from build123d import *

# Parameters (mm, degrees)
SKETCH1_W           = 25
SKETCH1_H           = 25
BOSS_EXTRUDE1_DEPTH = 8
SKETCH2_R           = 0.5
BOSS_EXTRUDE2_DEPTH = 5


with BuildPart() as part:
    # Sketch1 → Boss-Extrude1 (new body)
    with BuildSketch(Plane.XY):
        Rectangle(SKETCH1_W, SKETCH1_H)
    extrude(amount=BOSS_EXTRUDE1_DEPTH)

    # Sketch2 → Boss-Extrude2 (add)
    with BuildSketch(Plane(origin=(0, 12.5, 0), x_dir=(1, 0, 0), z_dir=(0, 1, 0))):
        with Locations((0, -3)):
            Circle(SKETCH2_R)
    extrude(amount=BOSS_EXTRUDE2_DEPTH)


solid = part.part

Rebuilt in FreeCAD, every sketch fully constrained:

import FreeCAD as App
import Part
import Sketcher

V = App.Vector

doc = App.newDocument("Part")
params = doc.addObject("Spreadsheet::Sheet", "Params")
for row, (alias, value) in enumerate([
    ("sketch1_width", "25 mm"),
    ("pad1_length", "8 mm"),
    ("sketch2_diameter", "1 mm"),
    ("pad2_length", "5 mm"),
], start=1):
    params.set(f"A{row}", alias)
    params.set(f"B{row}", "=" + value)
    params.setAlias(f"B{row}", alias)

body = doc.addObject("PartDesign::Body", "Body")

sketch1 = body.newObject("Sketcher::SketchObject", "Sketch")
sketch1.AttachmentSupport = (doc.getObject("XY_Plane"), [""])
sketch1.MapMode = "FlatFace"
sketch1.addGeometry(Part.LineSegment(V(-12, 12, 0), V(-12, -12, 0)), False)
sketch1.addGeometry(Part.LineSegment(V(-12, -12, 0), V(12, -12, 0)), False)
sketch1.addGeometry(Part.LineSegment(V(12, -12, 0), V(12, 12, 0)), False)
sketch1.addGeometry(Part.LineSegment(V(12, 12, 0), V(-12, 12, 0)), False)
sketch1.addConstraint(Sketcher.Constraint("Coincident", 0, 2, 1, 1))
sketch1.addConstraint(Sketcher.Constraint("Coincident", 1, 2, 2, 1))
sketch1.addConstraint(Sketcher.Constraint("Coincident", 2, 2, 3, 1))
sketch1.addConstraint(Sketcher.Constraint("Coincident", 3, 2, 0, 1))
sketch1.addConstraint(Sketcher.Constraint("Vertical", 0))
sketch1.addConstraint(Sketcher.Constraint("Horizontal", 1))
sketch1.addConstraint(Sketcher.Constraint("Vertical", 2))
sketch1.addConstraint(Sketcher.Constraint("Horizontal", 3))
sketch1.addConstraint(Sketcher.Constraint("Symmetric", 0, 2, 2, 2, -1, 1))
sketch1.addConstraint(Sketcher.Constraint("Equal", 3, 0))
sketch1.addConstraint(Sketcher.Constraint("DistanceX", 1, 1, 1, 2, 25.0))
sketch1.setExpression("Constraints[10]", "Params.sketch1_width")
pad1 = body.newObject("PartDesign::Pad", "Pad")
pad1.Profile = sketch1
pad1.setExpression("Length", "Params.pad1_length")

sketch2 = body.newObject("Sketcher::SketchObject", "Sketch001")
sketch2.AttachmentSupport = (doc.getObject("XZ_Plane"), [""])
sketch2.MapMode = "FlatFace"
sketch2.AttachmentOffset = App.Placement(V(0, 0, -12.5), App.Rotation())
sketch2.addGeometry(Part.Circle(V(0, 3, 0), V(0, 0, 1), 0.5), False)
sketch2.addConstraint(Sketcher.Constraint("PointOnObject", 0, 3, -2))
sketch2.addConstraint(Sketcher.Constraint("Diameter", 0, 1.0))
sketch2.addConstraint(Sketcher.Constraint("DistanceY", -1, 1, 0, 3, 3.0))
sketch2.setExpression("Constraints[1]", "Params.sketch2_diameter")
pad2 = body.newObject("PartDesign::Pad", "Pad001")
pad2.Profile = sketch2
pad2.setExpression("Length", "Params.pad2_length")
pad2.Reversed = True

doc.recompute()
